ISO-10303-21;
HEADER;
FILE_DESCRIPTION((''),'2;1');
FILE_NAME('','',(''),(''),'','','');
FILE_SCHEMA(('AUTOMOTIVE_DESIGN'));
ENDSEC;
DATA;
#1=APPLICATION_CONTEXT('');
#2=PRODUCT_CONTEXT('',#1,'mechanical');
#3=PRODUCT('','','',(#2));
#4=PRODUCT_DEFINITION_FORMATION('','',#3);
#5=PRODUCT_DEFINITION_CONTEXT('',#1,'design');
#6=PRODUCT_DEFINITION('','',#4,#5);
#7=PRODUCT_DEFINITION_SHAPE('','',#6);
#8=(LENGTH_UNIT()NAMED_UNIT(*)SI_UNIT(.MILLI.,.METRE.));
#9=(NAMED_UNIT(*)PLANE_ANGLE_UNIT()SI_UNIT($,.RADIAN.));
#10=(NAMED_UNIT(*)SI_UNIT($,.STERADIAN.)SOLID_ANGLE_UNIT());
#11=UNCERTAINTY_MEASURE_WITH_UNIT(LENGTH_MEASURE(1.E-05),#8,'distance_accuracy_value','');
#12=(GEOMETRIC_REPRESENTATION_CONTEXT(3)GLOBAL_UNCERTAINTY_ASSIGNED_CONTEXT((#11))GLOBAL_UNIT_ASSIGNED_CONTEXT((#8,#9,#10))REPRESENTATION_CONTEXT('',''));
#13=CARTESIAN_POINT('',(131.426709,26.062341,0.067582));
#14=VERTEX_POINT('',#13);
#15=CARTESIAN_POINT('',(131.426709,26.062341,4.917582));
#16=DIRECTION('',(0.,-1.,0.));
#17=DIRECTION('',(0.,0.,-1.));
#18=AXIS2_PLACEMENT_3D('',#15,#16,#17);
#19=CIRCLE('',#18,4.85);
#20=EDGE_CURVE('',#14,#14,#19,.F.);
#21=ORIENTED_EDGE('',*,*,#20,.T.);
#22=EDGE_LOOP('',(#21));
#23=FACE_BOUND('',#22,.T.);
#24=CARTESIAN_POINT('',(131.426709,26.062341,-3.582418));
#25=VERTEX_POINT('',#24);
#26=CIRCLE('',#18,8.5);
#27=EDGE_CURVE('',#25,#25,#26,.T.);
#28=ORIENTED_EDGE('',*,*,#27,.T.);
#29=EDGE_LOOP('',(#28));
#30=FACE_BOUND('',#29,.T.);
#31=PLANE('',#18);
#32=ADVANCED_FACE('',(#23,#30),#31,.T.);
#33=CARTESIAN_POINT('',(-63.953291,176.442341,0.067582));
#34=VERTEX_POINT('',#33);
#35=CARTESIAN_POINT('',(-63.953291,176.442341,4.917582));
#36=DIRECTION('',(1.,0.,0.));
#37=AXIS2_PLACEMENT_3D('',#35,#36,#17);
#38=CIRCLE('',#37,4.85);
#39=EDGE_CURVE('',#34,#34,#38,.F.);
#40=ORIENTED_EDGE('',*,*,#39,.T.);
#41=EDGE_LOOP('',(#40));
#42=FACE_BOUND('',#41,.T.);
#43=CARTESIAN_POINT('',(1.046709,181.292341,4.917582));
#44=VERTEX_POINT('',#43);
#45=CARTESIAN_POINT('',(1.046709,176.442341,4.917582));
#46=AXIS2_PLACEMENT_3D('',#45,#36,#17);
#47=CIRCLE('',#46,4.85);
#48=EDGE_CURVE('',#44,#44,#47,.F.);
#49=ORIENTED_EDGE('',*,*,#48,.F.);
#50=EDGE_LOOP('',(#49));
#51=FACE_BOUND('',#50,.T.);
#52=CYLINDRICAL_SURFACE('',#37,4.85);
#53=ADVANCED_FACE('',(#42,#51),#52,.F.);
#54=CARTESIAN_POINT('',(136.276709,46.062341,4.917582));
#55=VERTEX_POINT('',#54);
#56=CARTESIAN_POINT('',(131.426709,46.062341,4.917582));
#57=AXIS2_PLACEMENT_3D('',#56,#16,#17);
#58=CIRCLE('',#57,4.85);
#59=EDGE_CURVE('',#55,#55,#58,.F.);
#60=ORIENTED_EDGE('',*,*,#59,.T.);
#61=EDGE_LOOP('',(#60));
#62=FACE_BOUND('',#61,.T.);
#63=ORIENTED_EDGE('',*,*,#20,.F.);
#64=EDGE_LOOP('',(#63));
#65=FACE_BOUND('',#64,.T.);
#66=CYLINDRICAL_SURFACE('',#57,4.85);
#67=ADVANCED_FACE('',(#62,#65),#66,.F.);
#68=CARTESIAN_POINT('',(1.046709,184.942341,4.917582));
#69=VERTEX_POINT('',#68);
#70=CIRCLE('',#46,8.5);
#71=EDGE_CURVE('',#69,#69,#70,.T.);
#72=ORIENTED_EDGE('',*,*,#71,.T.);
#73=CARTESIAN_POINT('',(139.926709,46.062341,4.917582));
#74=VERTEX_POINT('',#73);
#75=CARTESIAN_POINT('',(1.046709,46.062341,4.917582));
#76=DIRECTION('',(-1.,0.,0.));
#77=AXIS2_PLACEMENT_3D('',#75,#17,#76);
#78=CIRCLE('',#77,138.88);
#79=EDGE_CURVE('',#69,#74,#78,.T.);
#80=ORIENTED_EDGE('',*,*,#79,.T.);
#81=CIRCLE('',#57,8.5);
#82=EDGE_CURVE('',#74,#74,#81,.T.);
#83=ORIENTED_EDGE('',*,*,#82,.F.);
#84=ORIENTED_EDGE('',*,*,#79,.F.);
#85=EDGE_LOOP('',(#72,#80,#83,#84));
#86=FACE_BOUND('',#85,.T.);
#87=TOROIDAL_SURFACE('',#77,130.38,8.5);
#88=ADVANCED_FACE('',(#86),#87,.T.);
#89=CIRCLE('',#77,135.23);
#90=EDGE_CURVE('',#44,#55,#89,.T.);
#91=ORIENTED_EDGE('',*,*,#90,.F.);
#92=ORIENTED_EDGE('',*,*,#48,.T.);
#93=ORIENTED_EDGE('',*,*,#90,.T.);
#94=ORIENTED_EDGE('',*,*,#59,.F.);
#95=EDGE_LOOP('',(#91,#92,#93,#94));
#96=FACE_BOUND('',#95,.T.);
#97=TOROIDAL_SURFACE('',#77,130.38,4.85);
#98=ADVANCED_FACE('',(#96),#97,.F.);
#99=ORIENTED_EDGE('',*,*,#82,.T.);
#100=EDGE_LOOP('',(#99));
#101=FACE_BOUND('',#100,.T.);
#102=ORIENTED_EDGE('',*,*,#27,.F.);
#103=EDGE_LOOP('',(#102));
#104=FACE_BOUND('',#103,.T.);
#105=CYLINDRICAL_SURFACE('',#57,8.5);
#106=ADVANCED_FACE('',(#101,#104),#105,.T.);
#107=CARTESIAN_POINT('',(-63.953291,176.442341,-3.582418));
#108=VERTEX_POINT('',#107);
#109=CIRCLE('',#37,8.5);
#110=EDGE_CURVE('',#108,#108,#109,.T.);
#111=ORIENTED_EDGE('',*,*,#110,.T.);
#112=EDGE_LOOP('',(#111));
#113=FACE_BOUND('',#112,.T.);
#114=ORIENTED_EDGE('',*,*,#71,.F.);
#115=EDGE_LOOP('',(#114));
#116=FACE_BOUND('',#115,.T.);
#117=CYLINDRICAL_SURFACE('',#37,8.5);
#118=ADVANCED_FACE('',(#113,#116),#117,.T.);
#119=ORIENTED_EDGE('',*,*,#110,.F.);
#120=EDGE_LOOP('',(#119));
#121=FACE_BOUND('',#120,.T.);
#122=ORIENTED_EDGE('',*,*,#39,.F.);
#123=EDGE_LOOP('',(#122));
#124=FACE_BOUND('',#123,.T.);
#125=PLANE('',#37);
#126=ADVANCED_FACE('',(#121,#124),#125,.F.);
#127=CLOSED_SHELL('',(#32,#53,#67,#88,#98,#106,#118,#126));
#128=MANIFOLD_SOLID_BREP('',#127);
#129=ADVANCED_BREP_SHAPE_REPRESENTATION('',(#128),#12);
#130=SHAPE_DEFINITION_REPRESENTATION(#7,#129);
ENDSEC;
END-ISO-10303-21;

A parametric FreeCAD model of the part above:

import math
import FreeCAD as App
import Part
import Sketcher
Q = App.Units.Quantity

doc = App.newDocument("Part")
params = doc.addObject("Spreadsheet::Sheet", "Params")
for row, (alias, value) in enumerate([
    ("sketch1_diameter", "17 mm"),
    ("sketch1_diameter2", "9.7 mm"),
    ("sketch2_width", "65 mm"),
    ("sketch2_height", "20 mm"),
    ("sketch2_radius", "130.38 mm"),
], start=1):
    params.set(f"A{row}", alias)
    params.set(f"B{row}", "=" + value)
    params.setAlias(f"B{row}", alias)

body = doc.addObject("PartDesign::Body", "Body")

sketch1 = doc.addObject("Sketcher::SketchObject", "Sketch")
body.addObject(sketch1)
sketch1.AttachmentSupport = (doc.YZ_Plane, [""])
sketch1.MapMode = "FlatFace"
sketch1.AttachmentOffset = App.Placement(App.Vector(0, 0, -63.953291), App.Rotation())
sketch1.addGeometry([
    Part.Circle(App.Vector(176.4, 4.9, 0), App.Vector(0, 0, 1), 8.5),
    Part.Circle(App.Vector(176.4, 4.9, 0), App.Vector(0, 0, 1), 4.8),
], False)
sketch1.addConstraint([
    Sketcher.Constraint("Coincident", 1, 3, 0, 3),
    Sketcher.Constraint("Diameter", 0, Q("17 mm")),
    Sketcher.Constraint("Diameter", 1, Q("9.7 mm")),
    Sketcher.Constraint("DistanceX", -1, 1, 0, 3, Q("176.442341 mm")),
    Sketcher.Constraint("DistanceY", -1, 1, 0, 3, Q("4.917582 mm")),
])
sketch1.setExpression("Constraints[1]", "Params.sketch1_diameter")
sketch1.setExpression("Constraints[2]", "Params.sketch1_diameter2")

sketch2 = doc.addObject("Sketcher::SketchObject", "Sketch001")
body.addObject(sketch2)
sketch2.AttachmentSupport = (doc.XY_Plane, [""])
sketch2.MapMode = "FlatFace"
sketch2.AttachmentOffset = App.Placement(App.Vector(0, 0, 4.917582), App.Rotation())
sketch2.addGeometry([
    Part.LineSegment(App.Vector(-64, 176, 0), App.Vector(1, 176, 0)),
    Part.ArcOfCircle(Part.Circle(App.Vector(1, 46, 0), App.Vector(0, 0, 1), 130), math.radians(0), math.radians(90)),
    Part.LineSegment(App.Vector(131, 46, 0), App.Vector(131, 26, 0)),
], False)
sketch2.addConstraint([
    Sketcher.Constraint("Tangent", 0, 2, 1, 2),
    Sketcher.Constraint("Tangent", 1, 1, 2, 1),
    Sketcher.Constraint("Horizontal", 0),
    Sketcher.Constraint("Vertical", 2),
    Sketcher.Constraint("DistanceX", 0, 1, 0, 2, Q("65 mm")),
    Sketcher.Constraint("DistanceY", 2, 2, 2, 1, Q("20 mm")),
    Sketcher.Constraint("Radius", 1, Q("130.38 mm")),
    Sketcher.Constraint("DistanceX", -1, 1, 1, 3, Q("1.046709 mm")),
    Sketcher.Constraint("DistanceY", -1, 1, 1, 3, Q("46.062341 mm")),
])
sketch2.setExpression("Constraints[4]", "Params.sketch2_width")
sketch2.setExpression("Constraints[5]", "Params.sketch2_height")
sketch2.setExpression("Constraints[6]", "Params.sketch2_radius")
doc.recompute()

additivepipe = doc.addObject("PartDesign::AdditivePipe", "AdditivePipe")
body.addObject(additivepipe)
additivepipe.Profile = sketch1
additivepipe.Spine = (sketch2, ["Edge1", "Edge2", "Edge3"])

doc.recompute()
